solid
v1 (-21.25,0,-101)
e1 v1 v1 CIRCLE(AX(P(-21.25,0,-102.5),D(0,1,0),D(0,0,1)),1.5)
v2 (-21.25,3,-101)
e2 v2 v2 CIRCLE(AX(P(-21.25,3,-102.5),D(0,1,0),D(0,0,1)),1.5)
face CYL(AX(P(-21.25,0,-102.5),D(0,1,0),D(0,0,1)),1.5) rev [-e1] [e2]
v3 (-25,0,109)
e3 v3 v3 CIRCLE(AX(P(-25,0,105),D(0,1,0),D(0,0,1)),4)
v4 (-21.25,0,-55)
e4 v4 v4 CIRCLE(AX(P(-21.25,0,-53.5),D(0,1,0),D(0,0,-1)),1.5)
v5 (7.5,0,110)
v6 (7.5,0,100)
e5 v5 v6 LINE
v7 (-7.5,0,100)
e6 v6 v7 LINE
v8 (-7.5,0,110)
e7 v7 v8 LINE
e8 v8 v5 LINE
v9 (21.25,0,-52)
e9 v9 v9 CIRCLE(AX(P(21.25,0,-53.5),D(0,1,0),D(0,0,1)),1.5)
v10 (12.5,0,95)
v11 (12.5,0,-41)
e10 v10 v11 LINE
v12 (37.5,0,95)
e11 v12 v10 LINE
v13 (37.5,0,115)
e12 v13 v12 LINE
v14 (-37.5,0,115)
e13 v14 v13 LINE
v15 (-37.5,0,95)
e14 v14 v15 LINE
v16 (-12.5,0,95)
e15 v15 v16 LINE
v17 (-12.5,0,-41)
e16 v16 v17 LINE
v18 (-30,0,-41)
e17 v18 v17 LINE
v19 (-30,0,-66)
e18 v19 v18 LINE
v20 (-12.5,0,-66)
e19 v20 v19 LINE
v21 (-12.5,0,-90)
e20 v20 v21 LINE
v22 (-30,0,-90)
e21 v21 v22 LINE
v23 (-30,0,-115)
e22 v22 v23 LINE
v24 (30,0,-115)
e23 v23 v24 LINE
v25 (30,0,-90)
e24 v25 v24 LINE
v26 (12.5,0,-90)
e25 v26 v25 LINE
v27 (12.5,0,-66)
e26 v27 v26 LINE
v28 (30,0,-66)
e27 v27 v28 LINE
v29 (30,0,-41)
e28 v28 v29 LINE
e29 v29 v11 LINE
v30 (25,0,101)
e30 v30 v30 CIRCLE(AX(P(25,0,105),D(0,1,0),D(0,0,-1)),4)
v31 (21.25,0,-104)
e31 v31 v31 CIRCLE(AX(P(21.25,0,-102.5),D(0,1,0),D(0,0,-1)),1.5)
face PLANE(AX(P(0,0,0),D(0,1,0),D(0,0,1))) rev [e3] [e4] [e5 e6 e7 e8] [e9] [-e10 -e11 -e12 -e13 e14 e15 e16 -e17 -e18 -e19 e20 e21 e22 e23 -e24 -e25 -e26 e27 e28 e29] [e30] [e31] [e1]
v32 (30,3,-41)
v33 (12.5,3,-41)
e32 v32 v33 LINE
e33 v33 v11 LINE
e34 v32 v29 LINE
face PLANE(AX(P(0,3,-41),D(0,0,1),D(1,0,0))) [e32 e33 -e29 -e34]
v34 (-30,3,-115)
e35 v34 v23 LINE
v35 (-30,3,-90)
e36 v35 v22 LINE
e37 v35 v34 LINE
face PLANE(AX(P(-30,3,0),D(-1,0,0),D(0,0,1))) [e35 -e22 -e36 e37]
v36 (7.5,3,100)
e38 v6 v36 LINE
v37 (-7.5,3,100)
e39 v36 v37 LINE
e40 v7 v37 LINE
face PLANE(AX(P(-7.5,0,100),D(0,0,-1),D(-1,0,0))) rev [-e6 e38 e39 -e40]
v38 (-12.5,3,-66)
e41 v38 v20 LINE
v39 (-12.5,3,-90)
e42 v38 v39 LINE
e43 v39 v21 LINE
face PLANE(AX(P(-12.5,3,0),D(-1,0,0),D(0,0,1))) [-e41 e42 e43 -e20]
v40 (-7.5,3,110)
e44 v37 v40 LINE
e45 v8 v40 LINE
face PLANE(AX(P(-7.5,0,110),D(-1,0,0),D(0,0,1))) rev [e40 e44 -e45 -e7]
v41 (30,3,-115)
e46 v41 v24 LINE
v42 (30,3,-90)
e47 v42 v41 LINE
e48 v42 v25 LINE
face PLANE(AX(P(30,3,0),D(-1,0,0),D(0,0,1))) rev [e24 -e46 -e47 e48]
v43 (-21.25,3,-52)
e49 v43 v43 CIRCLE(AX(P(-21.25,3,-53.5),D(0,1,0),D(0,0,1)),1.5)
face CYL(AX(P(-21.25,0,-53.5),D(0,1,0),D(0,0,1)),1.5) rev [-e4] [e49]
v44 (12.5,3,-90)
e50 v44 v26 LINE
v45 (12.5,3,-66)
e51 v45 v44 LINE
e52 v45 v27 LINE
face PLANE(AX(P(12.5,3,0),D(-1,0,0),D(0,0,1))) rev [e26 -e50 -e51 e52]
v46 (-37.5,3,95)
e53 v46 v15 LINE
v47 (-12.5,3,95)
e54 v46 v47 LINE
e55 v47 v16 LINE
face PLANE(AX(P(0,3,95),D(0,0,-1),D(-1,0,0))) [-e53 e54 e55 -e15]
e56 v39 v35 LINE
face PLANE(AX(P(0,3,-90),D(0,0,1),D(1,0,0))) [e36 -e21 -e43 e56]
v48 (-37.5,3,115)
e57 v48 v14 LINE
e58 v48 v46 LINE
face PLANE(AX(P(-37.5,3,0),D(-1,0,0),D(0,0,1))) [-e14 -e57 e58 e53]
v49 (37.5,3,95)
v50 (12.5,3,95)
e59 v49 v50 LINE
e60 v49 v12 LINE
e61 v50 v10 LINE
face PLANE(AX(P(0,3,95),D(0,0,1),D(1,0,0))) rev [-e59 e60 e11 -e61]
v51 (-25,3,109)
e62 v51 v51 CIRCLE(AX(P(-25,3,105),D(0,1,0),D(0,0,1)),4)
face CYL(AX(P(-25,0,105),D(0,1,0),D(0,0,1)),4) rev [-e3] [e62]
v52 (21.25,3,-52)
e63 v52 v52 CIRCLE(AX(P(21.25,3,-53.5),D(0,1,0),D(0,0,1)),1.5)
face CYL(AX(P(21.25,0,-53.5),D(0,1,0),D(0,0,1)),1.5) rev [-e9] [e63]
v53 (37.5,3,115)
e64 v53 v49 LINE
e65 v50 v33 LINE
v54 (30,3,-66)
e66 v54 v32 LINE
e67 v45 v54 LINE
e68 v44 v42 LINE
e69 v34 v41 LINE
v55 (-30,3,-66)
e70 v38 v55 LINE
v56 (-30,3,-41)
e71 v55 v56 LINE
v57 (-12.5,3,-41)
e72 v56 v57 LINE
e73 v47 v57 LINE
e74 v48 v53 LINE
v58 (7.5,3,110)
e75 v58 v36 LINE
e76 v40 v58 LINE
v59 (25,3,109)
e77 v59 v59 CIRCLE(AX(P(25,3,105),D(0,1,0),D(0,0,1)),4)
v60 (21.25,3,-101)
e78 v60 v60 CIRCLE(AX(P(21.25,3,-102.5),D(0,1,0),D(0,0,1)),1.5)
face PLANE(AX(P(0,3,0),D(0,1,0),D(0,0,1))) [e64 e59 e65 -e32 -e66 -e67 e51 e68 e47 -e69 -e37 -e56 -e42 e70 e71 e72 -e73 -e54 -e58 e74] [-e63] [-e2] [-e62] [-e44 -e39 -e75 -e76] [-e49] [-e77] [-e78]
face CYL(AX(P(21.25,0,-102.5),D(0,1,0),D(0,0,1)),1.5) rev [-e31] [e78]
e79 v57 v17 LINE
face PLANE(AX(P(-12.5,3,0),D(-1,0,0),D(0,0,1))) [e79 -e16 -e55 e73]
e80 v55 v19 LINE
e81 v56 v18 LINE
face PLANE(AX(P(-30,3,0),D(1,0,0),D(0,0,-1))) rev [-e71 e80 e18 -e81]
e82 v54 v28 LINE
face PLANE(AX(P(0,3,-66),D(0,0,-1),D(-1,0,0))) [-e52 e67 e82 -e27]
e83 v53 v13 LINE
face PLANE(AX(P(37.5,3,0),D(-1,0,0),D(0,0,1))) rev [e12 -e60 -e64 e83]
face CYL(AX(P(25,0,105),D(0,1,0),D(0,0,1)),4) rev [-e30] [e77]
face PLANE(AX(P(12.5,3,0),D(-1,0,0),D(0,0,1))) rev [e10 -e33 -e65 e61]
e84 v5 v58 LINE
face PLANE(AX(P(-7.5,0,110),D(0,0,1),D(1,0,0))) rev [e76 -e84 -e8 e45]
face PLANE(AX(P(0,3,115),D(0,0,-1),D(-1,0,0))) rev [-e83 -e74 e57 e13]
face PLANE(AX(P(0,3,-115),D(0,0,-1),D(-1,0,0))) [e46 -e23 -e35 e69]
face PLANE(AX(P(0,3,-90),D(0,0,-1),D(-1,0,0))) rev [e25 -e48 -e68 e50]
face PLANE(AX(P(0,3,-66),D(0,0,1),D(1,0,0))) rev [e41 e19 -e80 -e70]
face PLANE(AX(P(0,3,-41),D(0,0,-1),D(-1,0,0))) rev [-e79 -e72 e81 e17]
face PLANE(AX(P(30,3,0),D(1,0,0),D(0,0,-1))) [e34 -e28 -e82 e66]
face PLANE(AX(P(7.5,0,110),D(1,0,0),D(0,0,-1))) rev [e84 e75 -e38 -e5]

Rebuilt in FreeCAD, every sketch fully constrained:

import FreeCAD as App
import Part
import Sketcher
Q = App.Units.Quantity


def add_polygon(sketch, points):
    """Adds a closed chain of lines whose ends are joined by coincident constraints."""
    first, n = sketch.GeometryCount, len(points)
    for a, b in zip(points, points[1:] + points[:1]):
        sketch.addGeometry(Part.LineSegment(App.Vector(*a, 0), App.Vector(*b, 0)), False)
    for i in range(n):
        sketch.addConstraint(Sketcher.Constraint("Coincident", first + i, 2, first + (i + 1) % n, 1))

doc = App.newDocument("Part")
params = doc.addObject("Spreadsheet::Sheet", "Params")
for row, (alias, value) in enumerate([
    ("sketch1_width", "60 mm"),
    ("sketch1_width2", "25 mm"),
    ("sketch1_width3", "75 mm"),
    ("sketch1_height", "24 mm"),
    ("sketch1_height2", "136 mm"),
    ("pad1_length", "3 mm"),
    ("sketch2_diameter", "3 mm"),
    ("sketch3_diameter", "8 mm"),
    ("sketch3_width", "15 mm"),
    ("sketch3_height", "10 mm"),
], start=1):
    params.set(f"A{row}", alias)
    params.set(f"B{row}", "=" + value)
    params.setAlias(f"B{row}", alias)

body = doc.addObject("PartDesign::Body", "Body")

# Sketch on XZ plane
sketch1 = doc.addObject("Sketcher::SketchObject", "Sketch")
body.addObject(sketch1)
sketch1.AttachmentSupport = (doc.XZ_Plane, [""])
sketch1.MapMode = "FlatFace"
add_polygon(sketch1, [(12, -41), (30, -41), (30, -66), (12, -66), (12, -90), (30, -90), (30, -115), (-30, -115), (-30, -90), (-12, -90), (-12, -66), (-30, -66), (-30, -41), (-12, -41), (-12, 95), (-38, 95), (-38, 115), (38, 115), (38, 95), (12, 95)])  # lines 0-19
sketch1.addConstraint(Sketcher.Constraint("Horizontal", 0))
sketch1.addConstraint(Sketcher.Constraint("Vertical", 1))
sketch1.addConstraint(Sketcher.Constraint("Horizontal", 2))
sketch1.addConstraint(Sketcher.Constraint("Vertical", 3))
sketch1.addConstraint(Sketcher.Constraint("Horizontal", 4))
sketch1.addConstraint(Sketcher.Constraint("Vertical", 5))
sketch1.addConstraint(Sketcher.Constraint("Horizontal", 6))
sketch1.addConstraint(Sketcher.Constraint("Vertical", 7))
sketch1.addConstraint(Sketcher.Constraint("Horizontal", 8))
sketch1.addConstraint(Sketcher.Constraint("Vertical", 9))
sketch1.addConstraint(Sketcher.Constraint("Horizontal", 10))
sketch1.addConstraint(Sketcher.Constraint("Vertical", 11))
sketch1.addConstraint(Sketcher.Constraint("Horizontal", 12))
sketch1.addConstraint(Sketcher.Constraint("Vertical", 13))
sketch1.addConstraint(Sketcher.Constraint("Horizontal", 14))
sketch1.addConstraint(Sketcher.Constraint("Vertical", 15))
sketch1.addConstraint(Sketcher.Constraint("Horizontal", 16))
sketch1.addConstraint(Sketcher.Constraint("Vertical", 17))
sketch1.addConstraint(Sketcher.Constraint("Horizontal", 18))
sketch1.addConstraint(Sketcher.Constraint("Vertical", 19))
sketch1.addConstraint(Sketcher.Constraint("Symmetric", 4, 2, 7, 2, -2))
sketch1.addConstraint(Sketcher.Constraint("Symmetric", 2, 2, 9, 2, -2))
sketch1.addConstraint(Sketcher.Constraint("Symmetric", 0, 2, 11, 2, -2))
sketch1.addConstraint(Sketcher.Constraint("Symmetric", 14, 2, 17, 2, -2))
sketch1.addConstraint(Sketcher.Constraint("Vertical", 1, 2, 4, 2))
sketch1.addConstraint(Sketcher.Constraint("Vertical", 9, 2, 12, 2))
sketch1.addConstraint(Sketcher.Constraint("Vertical", 3, 2, 18, 2))
sketch1.addConstraint(Sketcher.Constraint("Equal", 18, 1))
sketch1.addConstraint(Sketcher.Constraint("Equal", 1, 5))
sketch1.addConstraint(Sketcher.Constraint("DistanceX", 6, 2, 6, 1, Q("60 mm")))
sketch1.addConstraint(Sketcher.Constraint("DistanceX", 14, 2, 14, 1, Q("25 mm")))
sketch1.addConstraint(Sketcher.Constraint("DistanceX", 16, 1, 16, 2, Q("75 mm")))
sketch1.addConstraint(Sketcher.Constraint("DistanceY", 3, 2, 3, 1, Q("24 mm")))
sketch1.addConstraint(Sketcher.Constraint("DistanceY", 13, 1, 13, 2, Q("136 mm")))
sketch1.addConstraint(Sketcher.Constraint("DistanceY", 15, 1, 15, 2, Q("20 mm")))
sketch1.addConstraint(Sketcher.Constraint("DistanceY", 0, 2, -1, 1, Q("41 mm")))
sketch1.setExpression("Constraints[49]", "Params.sketch1_width")
sketch1.setExpression("Constraints[50]", "Params.sketch1_width2")
sketch1.setExpression("Constraints[51]", "Params.sketch1_width3")
sketch1.setExpression("Constraints[52]", "Params.sketch1_height")
sketch1.setExpression("Constraints[53]", "Params.sketch1_height2")
pad1 = doc.addObject("PartDesign::Pad", "Pad")
body.addObject(pad1)
pad1.Profile = sketch1
pad1.setExpression("Length", "Params.pad1_length")
pad1.Reversed = True

# Sketch on XZ plane
sketch2 = doc.addObject("Sketcher::SketchObject", "Sketch001")
body.addObject(sketch2)
sketch2.AttachmentSupport = (doc.XZ_Plane, [""])
sketch2.MapMode = "FlatFace"
sketch2.AttachmentOffset = App.Placement(App.Vector(0, 0, -3), App.Rotation())
sketch2.addGeometry(Part.Circle(App.Vector(-21.2, -102.5, 0), App.Vector(0, 0, 1), 1.5), False)
sketch2.addGeometry(Part.Circle(App.Vector(21.2, -102.5, 0), App.Vector(0, 0, 1), 1.5), False)
sketch2.addGeometry(Part.Circle(App.Vector(-21.2, -53.5, 0), App.Vector(0, 0, 1), 1.5), False)
sketch2.addGeometry(Part.Circle(App.Vector(21.2, -53.5, 0), App.Vector(0, 0, 1), 1.5), False)
sketch2.addConstraint(Sketcher.Constraint("Equal", 0, 1))
sketch2.addConstraint(Sketcher.Constraint("Equal", 1, 2))
sketch2.addConstraint(Sketcher.Constraint("Equal", 2, 3))
sketch2.addConstraint(Sketcher.Constraint("Symmetric", 0, 3, 1, 3, -2))
sketch2.addConstraint(Sketcher.Constraint("Symmetric", 2, 3, 3, 3, -2))
sketch2.addConstraint(Sketcher.Constraint("Vertical", 0, 3, 2, 3))
sketch2.addConstraint(Sketcher.Constraint("Diameter", 0, Q("3 mm")))
sketch2.addConstraint(Sketcher.Constraint("DistanceY", 0, 3, 2, 3, Q("49 mm")))
sketch2.addConstraint(Sketcher.Constraint("DistanceY", 0, 3, -1, 1, Q("102.5 mm")))
sketch2.addConstraint(Sketcher.Constraint("DistanceX", 0, 3, 1, 3, Q("42.5 mm")))
sketch2.setExpression("Constraints[6]", "Params.sketch2_diameter")
pocket1 = doc.addObject("PartDesign::Pocket", "Pocket")
body.addObject(pocket1)
pocket1.Profile = sketch2
pocket1.Type = "ThroughAll"
pocket1.Midplane = True

# Sketch on XZ plane
sketch3 = doc.addObject("Sketcher::SketchObject", "Sketch002")
body.addObject(sketch3)
sketch3.AttachmentSupport = (doc.XZ_Plane, [""])
sketch3.MapMode = "FlatFace"
sketch3.AttachmentOffset = App.Placement(App.Vector(0, 0, -3), App.Rotation())
sketch3.addGeometry(Part.Circle(App.Vector(-25, 105, 0), App.Vector(0, 0, 1), 4), False)  # 0
sketch3.addGeometry(Part.Circle(App.Vector(25, 105, 0), App.Vector(0, 0, 1), 4), False)  # 1
add_polygon(sketch3, [(-7.5, 100), (-7.5, 110), (7.5, 110), (7.5, 100)])  # lines 2-5
sketch3.addConstraint(Sketcher.Constraint("Vertical", 2))
sketch3.addConstraint(Sketcher.Constraint("Horizontal", 3))
sketch3.addConstraint(Sketcher.Constraint("Vertical", 4))
sketch3.addConstraint(Sketcher.Constraint("Horizontal", 5))
sketch3.addConstraint(Sketcher.Constraint("Equal", 0, 1))
sketch3.addConstraint(Sketcher.Constraint("Symmetric", 0, 3, 1, 3, -2))
sketch3.addConstraint(Sketcher.Constraint("Diameter", 0, Q("8 mm")))
sketch3.addConstraint(Sketcher.Constraint("DistanceX", 3, 1, 3, 2, Q("15 mm")))
sketch3.addConstraint(Sketcher.Constraint("DistanceY", 2, 1, 2, 2, Q("10 mm")))
sketch3.addConstraint(Sketcher.Constraint("DistanceX", 0, 3, -1, 1, Q("25 mm")))
sketch3.addConstraint(Sketcher.Constraint("DistanceY", -1, 1, 0, 3, Q("105 mm")))
sketch3.addConstraint(Sketcher.Constraint("DistanceY", -1, 1, 2, 2, Q("110 mm")))
sketch3.addConstraint(Sketcher.Constraint("DistanceX", 2, 2, -1, 1, Q("7.5 mm")))
sketch3.setExpression("Constraints[10]", "Params.sketch3_diameter")
sketch3.setExpression("Constraints[11]", "Params.sketch3_width")
sketch3.setExpression("Constraints[12]", "Params.sketch3_height")
pocket2 = doc.addObject("PartDesign::Pocket", "Pocket001")
body.addObject(pocket2)
pocket2.Profile = sketch3
pocket2.Type = "ThroughAll"
pocket2.Midplane = True

doc.recompute()
